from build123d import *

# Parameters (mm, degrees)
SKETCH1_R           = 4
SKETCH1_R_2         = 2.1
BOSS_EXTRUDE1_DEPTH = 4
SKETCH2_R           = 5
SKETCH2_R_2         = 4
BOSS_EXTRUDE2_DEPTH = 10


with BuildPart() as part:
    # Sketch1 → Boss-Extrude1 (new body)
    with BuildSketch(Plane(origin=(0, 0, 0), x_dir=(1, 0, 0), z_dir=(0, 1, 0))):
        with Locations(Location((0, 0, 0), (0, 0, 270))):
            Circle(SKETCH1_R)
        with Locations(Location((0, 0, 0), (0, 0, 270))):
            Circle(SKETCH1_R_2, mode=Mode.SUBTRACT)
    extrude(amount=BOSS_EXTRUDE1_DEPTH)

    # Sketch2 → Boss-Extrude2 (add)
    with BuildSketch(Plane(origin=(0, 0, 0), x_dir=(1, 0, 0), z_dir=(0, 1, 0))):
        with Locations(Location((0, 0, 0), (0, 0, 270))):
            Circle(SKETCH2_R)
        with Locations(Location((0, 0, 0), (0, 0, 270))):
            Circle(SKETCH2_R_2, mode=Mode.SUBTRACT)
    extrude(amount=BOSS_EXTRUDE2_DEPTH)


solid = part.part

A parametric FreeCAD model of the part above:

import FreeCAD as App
import Part
import Sketcher
Q = App.Units.Quantity

doc = App.newDocument("Part")
params = doc.addObject("Spreadsheet::Sheet", "Params")
for row, (alias, value) in enumerate([
    ("sketch1_diameter", "8 mm"),
    ("sketch1_diameter2", "4.2 mm"),
    ("pad1_length", "4 mm"),
    ("sketch2_diameter", "10 mm"),
    ("sketch2_diameter2", "8 mm"),
    ("pad2_length", "10 mm"),
], start=1):
    params.set(f"A{row}", alias)
    params.set(f"B{row}", "=" + value)
    params.setAlias(f"B{row}", alias)

body = doc.addObject("PartDesign::Body", "Body")

sketch1 = body.newObject("Sketcher::SketchObject", "Sketch")
sketch1.AttachmentSupport = (doc.getObject("XZ_Plane"), [""])
sketch1.MapMode = "FlatFace"
sketch1.addGeometry(Part.Circle(App.Vector(0, 0, 0), App.Vector(0, 0, 1), 4), False)
sketch1.addGeometry(Part.Circle(App.Vector(0, 0, 0), App.Vector(0, 0, 1), 2.1), False)
sketch1.addConstraint(Sketcher.Constraint("Coincident", 0, 3, -1, 1))
sketch1.addConstraint(Sketcher.Constraint("Coincident", 1, 3, -1, 1))
sketch1.addConstraint(Sketcher.Constraint("Diameter", 0, Q("8 mm")))
sketch1.addConstraint(Sketcher.Constraint("Diameter", 1, Q("4.2 mm")))
sketch1.setExpression("Constraints[2]", "Params.sketch1_diameter")
sketch1.setExpression("Constraints[3]", "Params.sketch1_diameter2")
pad1 = body.newObject("PartDesign::Pad", "Pad")
pad1.Profile = sketch1
pad1.setExpression("Length", "Params.pad1_length")
pad1.Reversed = True

sketch2 = body.newObject("Sketcher::SketchObject", "Sketch001")
sketch2.AttachmentSupport = (doc.getObject("XZ_Plane"), [""])
sketch2.MapMode = "FlatFace"
sketch2.addGeometry(Part.Circle(App.Vector(0, 0, 0), App.Vector(0, 0, 1), 5), False)
sketch2.addGeometry(Part.Circle(App.Vector(0, 0, 0), App.Vector(0, 0, 1), 4), False)
sketch2.addConstraint(Sketcher.Constraint("Coincident", 0, 3, -1, 1))
sketch2.addConstraint(Sketcher.Constraint("Coincident", 1, 3, -1, 1))
sketch2.addConstraint(Sketcher.Constraint("Diameter", 0, Q("10 mm")))
sketch2.addConstraint(Sketcher.Constraint("Diameter", 1, Q("8 mm")))
sketch2.setExpression("Constraints[2]", "Params.sketch2_diameter")
sketch2.setExpression("Constraints[3]", "Params.sketch2_diameter2")
pad2 = body.newObject("PartDesign::Pad", "Pad001")
pad2.Profile = sketch2
pad2.setExpression("Length", "Params.pad2_length")
pad2.Reversed = True

doc.recompute()
